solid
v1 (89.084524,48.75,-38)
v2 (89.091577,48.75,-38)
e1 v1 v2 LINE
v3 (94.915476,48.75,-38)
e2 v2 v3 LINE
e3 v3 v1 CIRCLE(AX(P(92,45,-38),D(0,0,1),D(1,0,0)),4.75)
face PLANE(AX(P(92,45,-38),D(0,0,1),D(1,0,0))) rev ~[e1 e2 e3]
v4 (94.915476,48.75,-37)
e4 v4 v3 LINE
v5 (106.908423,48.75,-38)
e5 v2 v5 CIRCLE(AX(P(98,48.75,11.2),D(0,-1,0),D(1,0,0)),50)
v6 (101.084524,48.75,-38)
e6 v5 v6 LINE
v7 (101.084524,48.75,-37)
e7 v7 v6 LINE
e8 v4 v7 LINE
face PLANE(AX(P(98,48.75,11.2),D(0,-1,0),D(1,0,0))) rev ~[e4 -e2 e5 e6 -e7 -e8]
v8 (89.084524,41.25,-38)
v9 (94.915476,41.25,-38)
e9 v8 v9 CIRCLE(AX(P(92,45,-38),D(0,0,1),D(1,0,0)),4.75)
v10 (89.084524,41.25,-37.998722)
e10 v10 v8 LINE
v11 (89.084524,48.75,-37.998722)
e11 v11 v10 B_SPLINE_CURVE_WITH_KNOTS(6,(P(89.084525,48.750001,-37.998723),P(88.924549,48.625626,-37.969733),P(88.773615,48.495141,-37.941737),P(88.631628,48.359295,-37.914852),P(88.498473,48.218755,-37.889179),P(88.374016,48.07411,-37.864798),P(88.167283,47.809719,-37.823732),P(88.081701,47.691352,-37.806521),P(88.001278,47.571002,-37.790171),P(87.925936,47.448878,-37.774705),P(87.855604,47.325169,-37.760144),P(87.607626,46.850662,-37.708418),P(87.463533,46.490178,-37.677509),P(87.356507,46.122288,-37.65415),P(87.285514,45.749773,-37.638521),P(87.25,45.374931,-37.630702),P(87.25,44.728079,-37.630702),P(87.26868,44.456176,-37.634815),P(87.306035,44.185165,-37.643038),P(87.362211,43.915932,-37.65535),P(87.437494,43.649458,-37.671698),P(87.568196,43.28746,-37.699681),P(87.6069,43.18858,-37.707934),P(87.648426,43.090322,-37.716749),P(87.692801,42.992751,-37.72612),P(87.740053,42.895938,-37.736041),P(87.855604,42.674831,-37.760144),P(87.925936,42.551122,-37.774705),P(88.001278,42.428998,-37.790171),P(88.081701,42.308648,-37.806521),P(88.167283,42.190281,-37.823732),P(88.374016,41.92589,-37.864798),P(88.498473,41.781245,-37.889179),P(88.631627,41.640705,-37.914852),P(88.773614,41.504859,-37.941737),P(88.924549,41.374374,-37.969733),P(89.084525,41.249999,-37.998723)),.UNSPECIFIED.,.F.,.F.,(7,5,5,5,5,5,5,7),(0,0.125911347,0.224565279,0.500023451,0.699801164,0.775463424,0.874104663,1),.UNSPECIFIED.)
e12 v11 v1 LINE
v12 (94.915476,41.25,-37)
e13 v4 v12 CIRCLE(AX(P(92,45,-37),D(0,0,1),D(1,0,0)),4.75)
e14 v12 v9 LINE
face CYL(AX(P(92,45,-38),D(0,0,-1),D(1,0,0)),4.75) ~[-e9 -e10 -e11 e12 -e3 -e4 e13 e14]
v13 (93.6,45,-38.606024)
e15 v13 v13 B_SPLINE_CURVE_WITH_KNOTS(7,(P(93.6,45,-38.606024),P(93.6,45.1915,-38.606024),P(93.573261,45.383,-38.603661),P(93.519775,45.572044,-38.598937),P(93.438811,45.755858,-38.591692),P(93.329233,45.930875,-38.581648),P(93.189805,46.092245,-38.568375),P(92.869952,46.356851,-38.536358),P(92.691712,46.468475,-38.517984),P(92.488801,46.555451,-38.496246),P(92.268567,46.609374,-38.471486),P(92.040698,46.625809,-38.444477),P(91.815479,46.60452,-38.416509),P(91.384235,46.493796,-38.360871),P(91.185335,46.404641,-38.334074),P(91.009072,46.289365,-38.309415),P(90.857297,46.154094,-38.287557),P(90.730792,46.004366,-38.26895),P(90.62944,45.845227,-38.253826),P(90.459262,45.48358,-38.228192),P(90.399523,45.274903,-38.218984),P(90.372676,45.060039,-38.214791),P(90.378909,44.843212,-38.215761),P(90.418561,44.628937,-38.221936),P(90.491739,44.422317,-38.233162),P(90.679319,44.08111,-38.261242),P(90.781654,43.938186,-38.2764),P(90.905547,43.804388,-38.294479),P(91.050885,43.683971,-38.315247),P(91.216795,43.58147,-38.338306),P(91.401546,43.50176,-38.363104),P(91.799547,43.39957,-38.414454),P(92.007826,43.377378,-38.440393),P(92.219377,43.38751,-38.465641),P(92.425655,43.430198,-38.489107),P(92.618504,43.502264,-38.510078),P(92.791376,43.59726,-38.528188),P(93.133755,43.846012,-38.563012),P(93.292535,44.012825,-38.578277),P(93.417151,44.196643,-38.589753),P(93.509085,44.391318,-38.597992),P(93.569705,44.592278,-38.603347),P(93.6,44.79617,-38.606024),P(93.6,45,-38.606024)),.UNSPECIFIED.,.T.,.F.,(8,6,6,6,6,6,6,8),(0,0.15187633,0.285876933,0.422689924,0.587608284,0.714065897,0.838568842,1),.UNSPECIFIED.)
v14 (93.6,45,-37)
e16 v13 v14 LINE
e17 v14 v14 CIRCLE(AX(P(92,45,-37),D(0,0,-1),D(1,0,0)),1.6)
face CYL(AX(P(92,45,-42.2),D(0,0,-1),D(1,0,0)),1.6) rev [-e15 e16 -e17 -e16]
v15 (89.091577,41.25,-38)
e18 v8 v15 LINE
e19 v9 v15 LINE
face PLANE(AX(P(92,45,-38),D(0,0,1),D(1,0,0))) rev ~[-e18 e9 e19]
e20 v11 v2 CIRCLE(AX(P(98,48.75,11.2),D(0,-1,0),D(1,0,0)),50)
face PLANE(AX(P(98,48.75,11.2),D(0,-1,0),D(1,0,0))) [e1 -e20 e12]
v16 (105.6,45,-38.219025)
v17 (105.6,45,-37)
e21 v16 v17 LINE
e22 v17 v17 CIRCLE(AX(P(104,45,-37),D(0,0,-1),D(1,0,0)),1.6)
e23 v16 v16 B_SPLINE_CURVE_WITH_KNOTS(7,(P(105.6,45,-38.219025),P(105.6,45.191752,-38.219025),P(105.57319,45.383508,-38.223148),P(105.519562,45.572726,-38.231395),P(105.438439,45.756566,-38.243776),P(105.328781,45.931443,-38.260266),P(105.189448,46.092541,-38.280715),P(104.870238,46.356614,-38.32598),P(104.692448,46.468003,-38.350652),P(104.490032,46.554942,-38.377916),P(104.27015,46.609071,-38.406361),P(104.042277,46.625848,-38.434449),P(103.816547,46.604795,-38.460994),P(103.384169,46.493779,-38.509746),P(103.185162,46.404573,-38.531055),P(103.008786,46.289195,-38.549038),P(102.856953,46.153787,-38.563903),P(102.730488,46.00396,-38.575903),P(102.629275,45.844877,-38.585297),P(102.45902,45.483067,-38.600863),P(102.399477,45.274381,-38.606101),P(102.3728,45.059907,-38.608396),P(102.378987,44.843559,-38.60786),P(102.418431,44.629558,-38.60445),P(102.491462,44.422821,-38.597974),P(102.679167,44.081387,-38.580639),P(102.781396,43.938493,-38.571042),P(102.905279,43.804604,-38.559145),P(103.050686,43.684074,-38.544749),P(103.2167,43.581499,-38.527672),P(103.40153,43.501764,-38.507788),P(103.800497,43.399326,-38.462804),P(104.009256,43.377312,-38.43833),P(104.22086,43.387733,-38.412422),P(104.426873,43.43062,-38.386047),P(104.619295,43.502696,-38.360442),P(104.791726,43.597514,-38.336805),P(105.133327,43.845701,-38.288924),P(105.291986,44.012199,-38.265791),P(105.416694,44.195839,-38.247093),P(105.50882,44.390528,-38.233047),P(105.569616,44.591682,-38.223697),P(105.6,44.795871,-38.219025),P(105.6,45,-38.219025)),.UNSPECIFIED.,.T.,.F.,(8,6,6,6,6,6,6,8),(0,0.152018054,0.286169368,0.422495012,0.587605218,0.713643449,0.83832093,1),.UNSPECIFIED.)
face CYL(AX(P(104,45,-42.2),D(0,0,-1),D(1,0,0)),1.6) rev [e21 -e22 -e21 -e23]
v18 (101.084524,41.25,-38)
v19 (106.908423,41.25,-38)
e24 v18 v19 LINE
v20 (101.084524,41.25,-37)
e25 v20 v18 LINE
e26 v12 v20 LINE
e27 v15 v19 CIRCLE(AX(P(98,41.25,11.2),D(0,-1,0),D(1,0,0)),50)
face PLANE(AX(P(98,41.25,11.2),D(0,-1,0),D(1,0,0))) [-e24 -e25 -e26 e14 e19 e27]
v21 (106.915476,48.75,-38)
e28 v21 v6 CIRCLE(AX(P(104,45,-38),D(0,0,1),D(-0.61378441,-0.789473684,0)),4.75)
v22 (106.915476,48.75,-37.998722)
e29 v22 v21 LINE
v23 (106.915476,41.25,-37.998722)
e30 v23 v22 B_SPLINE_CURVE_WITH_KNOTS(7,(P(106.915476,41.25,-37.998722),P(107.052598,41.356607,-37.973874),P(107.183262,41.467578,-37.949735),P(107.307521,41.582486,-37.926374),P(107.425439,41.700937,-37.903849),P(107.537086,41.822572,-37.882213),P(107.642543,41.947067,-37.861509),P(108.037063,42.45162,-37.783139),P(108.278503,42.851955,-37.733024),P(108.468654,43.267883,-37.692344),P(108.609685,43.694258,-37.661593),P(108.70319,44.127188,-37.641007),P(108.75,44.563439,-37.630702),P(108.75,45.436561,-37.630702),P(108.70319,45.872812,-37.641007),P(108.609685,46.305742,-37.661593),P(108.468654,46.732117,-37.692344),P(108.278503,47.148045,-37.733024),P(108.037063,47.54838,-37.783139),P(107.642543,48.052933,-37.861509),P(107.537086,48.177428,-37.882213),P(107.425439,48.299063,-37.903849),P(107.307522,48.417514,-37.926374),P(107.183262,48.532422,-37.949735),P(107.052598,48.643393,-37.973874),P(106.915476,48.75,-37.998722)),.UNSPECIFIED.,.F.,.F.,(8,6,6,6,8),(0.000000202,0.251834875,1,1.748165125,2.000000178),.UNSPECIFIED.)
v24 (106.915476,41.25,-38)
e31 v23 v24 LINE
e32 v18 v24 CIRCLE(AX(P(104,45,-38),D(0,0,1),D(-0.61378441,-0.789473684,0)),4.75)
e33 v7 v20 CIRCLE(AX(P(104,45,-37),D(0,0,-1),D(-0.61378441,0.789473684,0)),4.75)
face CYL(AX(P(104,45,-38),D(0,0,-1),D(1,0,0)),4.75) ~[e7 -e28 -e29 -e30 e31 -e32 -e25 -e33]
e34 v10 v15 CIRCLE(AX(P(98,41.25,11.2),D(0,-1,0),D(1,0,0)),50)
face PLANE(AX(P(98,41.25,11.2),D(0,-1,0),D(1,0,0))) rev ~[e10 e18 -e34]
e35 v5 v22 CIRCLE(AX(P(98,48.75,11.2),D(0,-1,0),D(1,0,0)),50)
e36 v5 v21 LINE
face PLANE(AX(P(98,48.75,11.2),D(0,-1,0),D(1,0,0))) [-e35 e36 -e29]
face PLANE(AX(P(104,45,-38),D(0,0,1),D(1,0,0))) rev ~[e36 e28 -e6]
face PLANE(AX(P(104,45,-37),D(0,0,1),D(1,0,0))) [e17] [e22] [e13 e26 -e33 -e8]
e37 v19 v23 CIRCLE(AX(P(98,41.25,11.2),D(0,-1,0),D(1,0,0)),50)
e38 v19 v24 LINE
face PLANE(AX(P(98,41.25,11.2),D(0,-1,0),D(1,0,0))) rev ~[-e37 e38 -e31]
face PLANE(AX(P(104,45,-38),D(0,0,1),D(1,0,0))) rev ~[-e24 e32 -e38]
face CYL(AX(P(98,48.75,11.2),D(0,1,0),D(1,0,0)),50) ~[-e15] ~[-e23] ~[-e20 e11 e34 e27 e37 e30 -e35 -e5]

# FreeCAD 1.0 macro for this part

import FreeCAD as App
import Part
import Sketcher
from FreeCAD import Vector


def add_polygon(sketch, points):
    """Adds a closed chain of lines whose ends are joined by coincident constraints."""
    first, n = sketch.GeometryCount, len(points)
    for a, b in zip(points, points[1:] + points[:1]):
        sketch.addGeometry(Part.LineSegment(App.Vector(*a, 0), App.Vector(*b, 0)), False)
    for i in range(n):
        sketch.addConstraint(Sketcher.Constraint("Coincident", first + i, 2, first + (i + 1) % n, 1))

doc = App.newDocument("Part")
body = doc.addObject("PartDesign::Body", "Body")

# Sketch on XY plane
sketch1 = body.newObject("Sketcher::SketchObject", "Sketch")
sketch1.AttachmentSupport = (doc.getObject("XY_Plane"), [""])
sketch1.MapMode = "FlatFace"
sketch1.AttachmentOffset = App.Placement(Vector(0, 0, -9.2), App.Rotation())
sketch1.addGeometry(Part.Circle(Vector(0, -18, 0), Vector(0, 0, 1), 1.6), False)
sketch1.addConstraint([
    Sketcher.Constraint("PointOnObject", 0, 3, -2),
    Sketcher.Constraint("Diameter", 0, 3.2),
    Sketcher.Constraint("DistanceY", 0, 3, -1, 1, 18.0),
])
pad1 = body.newObject("PartDesign::Pad", "Pad")
pad1.Profile = sketch1
pad1.Length = 10
body2 = doc.addObject("PartDesign::Body", "Body001")
body2.AllowCompound = True

# Sketch on XY plane
sketch2 = body2.newObject("Sketcher::SketchObject", "Sketch001")
sketch2.AttachmentSupport = (doc.getObject("XY_Plane001"), [""])
sketch2.MapMode = "FlatFace"
sketch2.AttachmentOffset = App.Placement(Vector(0, 0, -9.2), App.Rotation())
sketch2.addGeometry(Part.Circle(Vector(12, -18, 0), Vector(0, 0, 1), 1.6), False)
sketch2.addConstraint([
    Sketcher.Constraint("Diameter", 0, 3.2),
    Sketcher.Constraint("DistanceX", -1, 1, 0, 3, 12.0),
    Sketcher.Constraint("DistanceY", 0, 3, -1, 1, 18.0),
])
pad2 = body2.newObject("PartDesign::Pad", "Pad001")
pad2.Profile = sketch2
pad2.Length = 10
doc.recompute()

boolean = body2.newObject("PartDesign::Boolean", "Boolean")
boolean.Type = "Fuse"
boolean.addObjects([body])
body3 = doc.addObject("PartDesign::Body", "Body002")
body3.AllowCompound = True
doc.recompute()

body2.Placement = App.Placement(Vector(0, 0, 5), App.Rotation(Vector(0, 0, 1), 0))
boolean2 = body3.newObject("PartDesign::Boolean", "Boolean001")
boolean2.Type = "Fuse"
boolean2.addObjects([body2])
body4 = doc.addObject("PartDesign::Body", "Body003")

# Sketch on XY plane
sketch3 = body4.newObject("Sketcher::SketchObject", "Sketch002")
sketch3.AttachmentSupport = (doc.getObject("XY_Plane003"), [""])
sketch3.MapMode = "FlatFace"
sketch3.addGeometry(Part.Circle(Vector(0, 0, 0), Vector(0, 0, 1), 50), False)
sketch3.addConstraint([
    Sketcher.Constraint("Coincident", 0, 3, -1, 1),
    Sketcher.Constraint("Diameter", 0, 100.0),
])
pad3 = body4.newObject("PartDesign::Pad", "Pad002")
pad3.Profile = sketch3
pad3.Length = 7.5
body5 = doc.addObject("PartDesign::Body", "Body004")
doc.recompute()

body4.Placement = App.Placement(Vector(0, 0, 0), App.Rotation(Vector(1, 0, 0), 90))
boolean3 = body5.newObject("PartDesign::Boolean", "Boolean002")
boolean3.Type = "Fuse"
boolean3.addObjects([body4])
body6 = doc.addObject("PartDesign::Body", "Body005")
doc.recompute()

body5.Placement = App.Placement(Vector(6, -14.25, 49.2), App.Rotation(Vector(0, 0, 1), 0))
boolean4 = body6.newObject("PartDesign::Boolean", "Boolean003")
boolean4.Type = "Fuse"
boolean4.addObjects([body5])
body7 = doc.addObject("PartDesign::Body", "Body006")

# Sketch on XY plane
sketch4 = body7.newObject("Sketcher::SketchObject", "Sketch003")
sketch4.AttachmentSupport = (doc.getObject("XY_Plane006"), [""])
sketch4.MapMode = "FlatFace"
sketch4.addGeometry(Part.Circle(Vector(0, 0, 0), Vector(0, 0, 1), 51), False)
sketch4.addConstraint([
    Sketcher.Constraint("Coincident", 0, 3, -1, 1),
    Sketcher.Constraint("Diameter", 0, 102.0),
])
pad4 = body7.newObject("PartDesign::Pad", "Pad003")
pad4.Profile = sketch4
pad4.Length = 7.5
body8 = doc.addObject("PartDesign::Body", "Body007")
doc.recompute()

body7.Placement = App.Placement(Vector(0, 0, 0), App.Rotation(Vector(1, 0, 0), 90))
boolean5 = body8.newObject("PartDesign::Boolean", "Boolean004")
boolean5.Type = "Fuse"
boolean5.addObjects([body7])
body9 = doc.addObject("PartDesign::Body", "Body008")
doc.recompute()

body8.Placement = App.Placement(Vector(6, -14.25, 49.2), App.Rotation(Vector(0, 0, 1), 0))
boolean6 = body9.newObject("PartDesign::Boolean", "Boolean005")
boolean6.Type = "Fuse"
boolean6.addObjects([body8])
doc.recompute()

boolean7 = body9.newObject("PartDesign::Boolean", "Boolean006")
boolean7.Type = "Cut"
boolean7.addObjects([body6])
body10 = doc.addObject("PartDesign::Body", "Body009")

# Sketch on XY plane
sketch5 = body10.newObject("Sketcher::SketchObject", "Sketch004")
sketch5.AttachmentSupport = (doc.getObject("XY_Plane009"), [""])
sketch5.MapMode = "FlatFace"
add_polygon(sketch5, [(-150, -12), (-150, -22), (167, -22), (167, -12)])  # lines 0-3
sketch5.addConstraint([
    Sketcher.Constraint("Vertical", 0),
    Sketcher.Constraint("Horizontal", 1),
    Sketcher.Constraint("Vertical", 2),
    Sketcher.Constraint("Horizontal", 3),
    Sketcher.Constraint("DistanceX", 1, 1, 1, 2, 317.0),
    Sketcher.Constraint("DistanceY", 0, 2, 0, 1, 10.0),
    Sketcher.Constraint("DistanceX", 0, 2, -1, 1, 150.0),
    Sketcher.Constraint("DistanceY", 0, 2, -1, 1, 22.0),
])
pad5 = body10.newObject("PartDesign::Pad", "Pad004")
pad5.Profile = sketch5
pad5.Length = 300
body11 = doc.addObject("PartDesign::Body", "Body010")

# Sketch on XY plane
sketch6 = body11.newObject("Sketcher::SketchObject", "Sketch005")
sketch6.AttachmentSupport = (doc.getObject("XY_Plane010"), [""])
sketch6.MapMode = "FlatFace"
sketch6.addGeometry(Part.Circle(Vector(0, 0, 0), Vector(0, 0, 1), 50), False)
sketch6.addConstraint([
    Sketcher.Constraint("Coincident", 0, 3, -1, 1),
    Sketcher.Constraint("Diameter", 0, 100.0),
])
pad6 = body11.newObject("PartDesign::Pad", "Pad005")
pad6.Profile = sketch6
pad6.Length = 7.5
body12 = doc.addObject("PartDesign::Body", "Body011")
doc.recompute()

body11.Placement = App.Placement(Vector(0, 0, 0), App.Rotation(Vector(1, 0, 0), 90))
boolean8 = body12.newObject("PartDesign::Boolean", "Boolean007")
boolean8.Type = "Fuse"
boolean8.addObjects([body11])
body13 = doc.addObject("PartDesign::Body", "Body012")
doc.recompute()

body12.Placement = App.Placement(Vector(6, -14.25, 49.2), App.Rotation(Vector(0, 0, 1), 0))
boolean9 = body13.newObject("PartDesign::Boolean", "Boolean008")
boolean9.Type = "Fuse"
boolean9.addObjects([body12])
doc.recompute()

boolean10 = body13.newObject("PartDesign::Boolean", "Boolean009")
boolean10.Type = "Cut"
boolean10.addObjects([body10])
body14 = doc.addObject("PartDesign::Body", "Body013")

# Sketch on XY plane
sketch7 = body14.newObject("Sketcher::SketchObject", "Sketch006")
sketch7.AttachmentSupport = (doc.getObject("XY_Plane013"), [""])
sketch7.MapMode = "FlatFace"
sketch7.addGeometry(Part.Circle(Vector(0, -18, 0), Vector(0, 0, 1), 4.8), False)
sketch7.addConstraint([
    Sketcher.Constraint("PointOnObject", 0, 3, -2),
    Sketcher.Constraint("Diameter", 0, 9.5),
    Sketcher.Constraint("DistanceY", 0, 3, -1, 1, 18.0),
])
pad7 = body14.newObject("PartDesign::Pad", "Pad006")
pad7.Profile = sketch7
pad7.Length = 1
body15 = doc.addObject("PartDesign::Body", "Body014")

# Sketch on XY plane
sketch8 = body15.newObject("Sketcher::SketchObject", "Sketch007")
sketch8.AttachmentSupport = (doc.getObject("XY_Plane014"), [""])
sketch8.MapMode = "FlatFace"
sketch8.addGeometry(Part.Circle(Vector(12, -18, 0), Vector(0, 0, 1), 4.8), False)
sketch8.addConstraint([
    Sketcher.Constraint("Diameter", 0, 9.5),
    Sketcher.Constraint("DistanceX", -1, 1, 0, 3, 12.0),
    Sketcher.Constraint("DistanceY", 0, 3, -1, 1, 18.0),
])
pad8 = body15.newObject("PartDesign::Pad", "Pad007")
pad8.Profile = sketch8
pad8.Length = 1
body16 = doc.addObject("PartDesign::Body", "Body015")

# Sketch on XY plane
sketch9 = body16.newObject("Sketcher::SketchObject", "Sketch008")
sketch9.AttachmentSupport = (doc.getObject("XY_Plane015"), [""])
sketch9.MapMode = "FlatFace"
add_polygon(sketch9, [(0, -14), (0, -22), (12, -22), (12, -14)])  # lines 0-3
sketch9.addConstraint([
    Sketcher.Constraint("Vertical", 0),
    Sketcher.Constraint("Horizontal", 1),
    Sketcher.Constraint("Vertical", 2),
    Sketcher.Constraint("Horizontal", 3),
    Sketcher.Constraint("PointOnObject", 0, 2, -2),
    Sketcher.Constraint("DistanceX", 1, 1, 1, 2, 12.0),
    Sketcher.Constraint("DistanceY", 0, 2, 0, 1, 7.5),
    Sketcher.Constraint("DistanceY", 0, 2, -1, 1, 21.75),
])
pad9 = body16.newObject("PartDesign::Pad", "Pad008")
pad9.Profile = sketch9
pad9.Length = 1
doc.recompute()

boolean11 = body16.newObject("PartDesign::Boolean", "Boolean010")
boolean11.Type = "Fuse"
boolean11.addObjects([body13])
doc.recompute()

boolean12 = body16.newObject("PartDesign::Boolean", "Boolean011")
boolean12.Type = "Fuse"
boolean12.addObjects([body14])
doc.recompute()

boolean13 = body16.newObject("PartDesign::Boolean", "Boolean012")
boolean13.Type = "Fuse"
boolean13.addObjects([body15])
doc.recompute()

boolean14 = body16.newObject("PartDesign::Boolean", "Boolean013")
boolean14.Type = "Cut"
boolean14.addObjects([body9])
doc.recompute()

boolean15 = body16.newObject("PartDesign::Boolean", "Boolean014")
boolean15.Type = "Cut"
boolean15.addObjects([body3])
body17 = doc.addObject("PartDesign::Body", "Body016")
doc.recompute()

body16.Placement = App.Placement(Vector(92, 63, -38), App.Rotation(Vector(0, 0, 1), 0))
boolean16 = body17.newObject("PartDesign::Boolean", "Boolean015")
boolean16.Type = "Fuse"
boolean16.addObjects([body16])

doc.recompute()
